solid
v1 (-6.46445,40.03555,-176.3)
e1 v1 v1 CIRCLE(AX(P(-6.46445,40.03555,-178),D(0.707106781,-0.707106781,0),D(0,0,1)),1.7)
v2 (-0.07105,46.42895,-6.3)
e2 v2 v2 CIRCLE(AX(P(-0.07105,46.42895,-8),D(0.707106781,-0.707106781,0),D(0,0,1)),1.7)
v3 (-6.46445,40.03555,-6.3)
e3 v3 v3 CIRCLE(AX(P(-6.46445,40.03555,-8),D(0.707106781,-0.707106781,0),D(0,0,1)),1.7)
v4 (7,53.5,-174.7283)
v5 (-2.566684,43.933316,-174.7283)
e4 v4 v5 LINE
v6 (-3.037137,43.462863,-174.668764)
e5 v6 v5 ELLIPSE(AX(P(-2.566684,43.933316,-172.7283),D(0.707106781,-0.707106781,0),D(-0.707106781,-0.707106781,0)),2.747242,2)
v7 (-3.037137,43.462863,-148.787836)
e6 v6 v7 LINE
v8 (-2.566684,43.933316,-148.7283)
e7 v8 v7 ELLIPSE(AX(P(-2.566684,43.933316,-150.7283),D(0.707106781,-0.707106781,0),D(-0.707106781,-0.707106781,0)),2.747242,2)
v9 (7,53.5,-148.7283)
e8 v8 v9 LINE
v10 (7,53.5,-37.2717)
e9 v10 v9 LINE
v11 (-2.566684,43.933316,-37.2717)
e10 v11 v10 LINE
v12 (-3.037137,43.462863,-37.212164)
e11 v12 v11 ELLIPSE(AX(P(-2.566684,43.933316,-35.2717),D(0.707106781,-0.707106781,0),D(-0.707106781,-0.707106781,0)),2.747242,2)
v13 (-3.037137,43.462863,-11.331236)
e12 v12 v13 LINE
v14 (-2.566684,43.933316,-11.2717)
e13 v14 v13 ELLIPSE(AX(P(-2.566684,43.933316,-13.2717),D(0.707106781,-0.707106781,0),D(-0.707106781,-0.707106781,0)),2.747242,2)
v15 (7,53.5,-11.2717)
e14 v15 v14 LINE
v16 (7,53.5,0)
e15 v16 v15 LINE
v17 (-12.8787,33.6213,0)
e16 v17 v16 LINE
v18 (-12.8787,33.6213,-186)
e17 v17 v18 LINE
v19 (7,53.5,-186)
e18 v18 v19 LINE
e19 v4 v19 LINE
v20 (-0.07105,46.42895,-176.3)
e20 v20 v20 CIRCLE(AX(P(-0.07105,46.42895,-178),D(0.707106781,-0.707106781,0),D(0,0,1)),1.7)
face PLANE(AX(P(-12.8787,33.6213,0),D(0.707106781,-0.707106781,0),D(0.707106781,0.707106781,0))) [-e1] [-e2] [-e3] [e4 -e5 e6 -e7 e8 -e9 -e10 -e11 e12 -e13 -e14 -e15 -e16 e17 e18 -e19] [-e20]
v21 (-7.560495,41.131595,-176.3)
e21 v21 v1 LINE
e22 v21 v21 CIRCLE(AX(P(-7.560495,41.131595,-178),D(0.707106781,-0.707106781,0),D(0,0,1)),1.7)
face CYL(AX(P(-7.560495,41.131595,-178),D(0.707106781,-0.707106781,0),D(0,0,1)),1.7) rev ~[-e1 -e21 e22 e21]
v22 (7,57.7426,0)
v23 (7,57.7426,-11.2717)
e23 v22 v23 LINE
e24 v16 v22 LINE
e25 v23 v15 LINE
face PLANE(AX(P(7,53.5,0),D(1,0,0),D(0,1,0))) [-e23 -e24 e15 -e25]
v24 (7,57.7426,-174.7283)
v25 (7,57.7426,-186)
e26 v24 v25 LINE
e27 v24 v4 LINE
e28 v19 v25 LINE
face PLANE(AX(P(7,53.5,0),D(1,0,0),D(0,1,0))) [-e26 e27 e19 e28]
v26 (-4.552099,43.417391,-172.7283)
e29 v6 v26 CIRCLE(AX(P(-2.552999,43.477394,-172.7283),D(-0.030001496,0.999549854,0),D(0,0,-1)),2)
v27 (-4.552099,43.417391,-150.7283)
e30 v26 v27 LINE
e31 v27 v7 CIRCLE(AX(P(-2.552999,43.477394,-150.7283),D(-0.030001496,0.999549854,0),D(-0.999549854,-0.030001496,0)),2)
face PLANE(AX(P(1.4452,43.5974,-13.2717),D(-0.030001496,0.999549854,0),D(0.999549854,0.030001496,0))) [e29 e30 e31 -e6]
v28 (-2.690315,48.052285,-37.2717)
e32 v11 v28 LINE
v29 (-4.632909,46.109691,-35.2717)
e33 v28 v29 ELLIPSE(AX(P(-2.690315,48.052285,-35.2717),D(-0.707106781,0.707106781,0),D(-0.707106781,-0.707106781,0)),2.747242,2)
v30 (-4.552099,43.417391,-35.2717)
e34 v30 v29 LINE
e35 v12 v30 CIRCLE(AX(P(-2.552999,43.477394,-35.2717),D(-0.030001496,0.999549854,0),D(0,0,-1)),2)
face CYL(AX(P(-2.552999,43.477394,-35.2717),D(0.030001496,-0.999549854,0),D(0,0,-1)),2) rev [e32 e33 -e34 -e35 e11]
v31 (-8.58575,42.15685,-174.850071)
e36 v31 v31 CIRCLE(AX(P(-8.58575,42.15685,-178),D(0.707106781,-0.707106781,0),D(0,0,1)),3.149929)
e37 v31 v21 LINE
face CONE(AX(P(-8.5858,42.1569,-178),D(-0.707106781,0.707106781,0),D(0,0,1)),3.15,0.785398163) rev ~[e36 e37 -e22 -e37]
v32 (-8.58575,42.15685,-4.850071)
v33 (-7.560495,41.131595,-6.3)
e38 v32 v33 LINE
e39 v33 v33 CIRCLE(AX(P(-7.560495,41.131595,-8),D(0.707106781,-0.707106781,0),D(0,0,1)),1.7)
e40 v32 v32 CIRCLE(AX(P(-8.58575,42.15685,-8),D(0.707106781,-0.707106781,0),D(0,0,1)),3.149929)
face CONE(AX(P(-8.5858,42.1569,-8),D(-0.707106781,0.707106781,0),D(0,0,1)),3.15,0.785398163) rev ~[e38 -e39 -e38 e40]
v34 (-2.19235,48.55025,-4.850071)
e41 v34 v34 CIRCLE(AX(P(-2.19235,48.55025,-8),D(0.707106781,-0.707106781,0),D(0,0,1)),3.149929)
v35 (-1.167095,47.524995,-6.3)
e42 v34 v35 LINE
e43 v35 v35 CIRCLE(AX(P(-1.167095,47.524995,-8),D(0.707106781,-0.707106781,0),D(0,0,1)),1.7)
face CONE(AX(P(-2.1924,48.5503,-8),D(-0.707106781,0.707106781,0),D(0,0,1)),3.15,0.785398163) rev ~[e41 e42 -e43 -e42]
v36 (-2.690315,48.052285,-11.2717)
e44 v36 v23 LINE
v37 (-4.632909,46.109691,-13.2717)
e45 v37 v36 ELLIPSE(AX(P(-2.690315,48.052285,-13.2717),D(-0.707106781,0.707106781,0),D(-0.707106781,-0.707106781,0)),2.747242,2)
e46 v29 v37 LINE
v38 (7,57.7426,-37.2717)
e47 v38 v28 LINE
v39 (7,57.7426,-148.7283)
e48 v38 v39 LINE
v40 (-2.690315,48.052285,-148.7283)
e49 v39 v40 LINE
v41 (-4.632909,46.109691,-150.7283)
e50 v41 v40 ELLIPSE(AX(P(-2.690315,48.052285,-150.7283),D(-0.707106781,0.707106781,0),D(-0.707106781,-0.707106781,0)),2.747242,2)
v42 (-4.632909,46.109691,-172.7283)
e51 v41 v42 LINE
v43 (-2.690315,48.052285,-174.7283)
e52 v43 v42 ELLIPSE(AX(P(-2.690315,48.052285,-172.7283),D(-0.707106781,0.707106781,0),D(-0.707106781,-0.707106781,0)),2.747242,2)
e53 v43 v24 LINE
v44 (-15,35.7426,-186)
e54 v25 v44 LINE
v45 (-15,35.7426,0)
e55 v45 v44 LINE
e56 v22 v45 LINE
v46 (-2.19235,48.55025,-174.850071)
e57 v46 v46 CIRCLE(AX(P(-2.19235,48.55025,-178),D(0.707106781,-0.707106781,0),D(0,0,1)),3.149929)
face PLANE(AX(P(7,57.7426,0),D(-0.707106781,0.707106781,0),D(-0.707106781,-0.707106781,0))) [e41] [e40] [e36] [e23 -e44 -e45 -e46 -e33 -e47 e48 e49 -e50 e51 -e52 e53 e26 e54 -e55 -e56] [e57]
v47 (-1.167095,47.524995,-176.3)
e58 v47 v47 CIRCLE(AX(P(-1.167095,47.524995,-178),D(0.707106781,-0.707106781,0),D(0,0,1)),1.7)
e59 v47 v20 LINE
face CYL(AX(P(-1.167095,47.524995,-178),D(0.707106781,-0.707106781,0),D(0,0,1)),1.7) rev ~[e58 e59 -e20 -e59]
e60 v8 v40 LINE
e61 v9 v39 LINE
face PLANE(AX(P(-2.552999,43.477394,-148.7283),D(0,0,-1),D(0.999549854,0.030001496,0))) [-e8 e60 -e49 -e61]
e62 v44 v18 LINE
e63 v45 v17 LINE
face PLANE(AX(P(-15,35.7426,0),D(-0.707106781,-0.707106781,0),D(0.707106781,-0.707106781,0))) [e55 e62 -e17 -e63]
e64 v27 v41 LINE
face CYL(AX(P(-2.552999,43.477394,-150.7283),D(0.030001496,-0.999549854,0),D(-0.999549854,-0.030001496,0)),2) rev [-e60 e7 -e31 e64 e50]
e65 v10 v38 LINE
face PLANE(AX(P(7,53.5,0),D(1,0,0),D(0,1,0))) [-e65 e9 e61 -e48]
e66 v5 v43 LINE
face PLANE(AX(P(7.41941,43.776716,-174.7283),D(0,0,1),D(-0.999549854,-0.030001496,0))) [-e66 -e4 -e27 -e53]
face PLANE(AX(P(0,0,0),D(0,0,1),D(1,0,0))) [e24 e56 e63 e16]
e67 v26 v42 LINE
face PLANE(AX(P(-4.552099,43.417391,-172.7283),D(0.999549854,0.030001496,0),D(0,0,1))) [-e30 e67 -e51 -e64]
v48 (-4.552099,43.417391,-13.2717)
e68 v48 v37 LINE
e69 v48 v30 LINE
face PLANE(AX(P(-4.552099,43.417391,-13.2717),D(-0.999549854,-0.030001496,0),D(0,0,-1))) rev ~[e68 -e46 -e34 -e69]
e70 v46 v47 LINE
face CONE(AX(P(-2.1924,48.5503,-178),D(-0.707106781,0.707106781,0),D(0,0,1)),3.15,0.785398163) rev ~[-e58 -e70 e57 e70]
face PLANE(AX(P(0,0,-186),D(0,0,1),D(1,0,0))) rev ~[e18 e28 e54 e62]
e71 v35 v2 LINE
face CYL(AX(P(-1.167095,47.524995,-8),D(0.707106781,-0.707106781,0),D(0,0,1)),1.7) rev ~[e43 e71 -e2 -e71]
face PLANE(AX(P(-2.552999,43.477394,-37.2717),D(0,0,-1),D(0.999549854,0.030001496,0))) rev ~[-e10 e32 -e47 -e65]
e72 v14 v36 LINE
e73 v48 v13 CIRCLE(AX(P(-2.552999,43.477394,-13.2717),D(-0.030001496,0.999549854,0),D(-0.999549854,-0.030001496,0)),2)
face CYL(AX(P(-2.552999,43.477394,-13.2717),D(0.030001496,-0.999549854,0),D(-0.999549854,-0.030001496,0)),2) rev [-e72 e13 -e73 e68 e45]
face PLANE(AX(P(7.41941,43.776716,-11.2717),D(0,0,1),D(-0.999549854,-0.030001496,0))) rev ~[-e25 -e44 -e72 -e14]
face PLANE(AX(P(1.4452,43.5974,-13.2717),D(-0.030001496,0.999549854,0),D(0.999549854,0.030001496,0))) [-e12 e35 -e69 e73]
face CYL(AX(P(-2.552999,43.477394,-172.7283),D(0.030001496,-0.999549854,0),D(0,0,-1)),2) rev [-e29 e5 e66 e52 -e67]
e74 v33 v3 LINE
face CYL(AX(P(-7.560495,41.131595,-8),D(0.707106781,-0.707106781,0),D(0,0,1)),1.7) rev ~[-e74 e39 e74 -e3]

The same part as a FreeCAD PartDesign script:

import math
import FreeCAD as App
import Part
import Sketcher

V = App.Vector
Q = App.Units.Quantity

doc = App.newDocument("Part")
body = doc.addObject("PartDesign::Body", "Body")

sketch1 = body.newObject("Sketcher::SketchObject", "Sketch")
sketch1.AttachmentSupport = (doc.getObject("XY_Plane"), [""])
sketch1.MapMode = "FlatFace"
sketch1.addGeometry([
    Part.LineSegment(V(7, 53.5, 0), V(7, 57.7, 0)),
    Part.LineSegment(V(7, 57.7, 0), V(-15, 35.7, 0)),
    Part.LineSegment(V(-15, 35.7, 0), V(-12.9, 33.6, 0)),
    Part.LineSegment(V(-12.9, 33.6, 0), V(7, 53.5, 0)),
], False)
sketch1.addConstraint([
    Sketcher.Constraint("Coincident", 0, 2, 1, 1),
    Sketcher.Constraint("Coincident", 1, 2, 2, 1),
    Sketcher.Constraint("Coincident", 2, 2, 3, 1),
    Sketcher.Constraint("Coincident", 3, 2, 0, 1),
    Sketcher.Constraint("Vertical", 0),
    Sketcher.Constraint("Perpendicular", 1, 2),
    Sketcher.Constraint("Perpendicular", 2, 3),
    Sketcher.Constraint("Distance", 2, Q("3 mm")),
    Sketcher.Constraint("Angle", 1, Q("-135 deg")),
    Sketcher.Constraint("DistanceX", -1, 1, 0, 2, Q("7 mm")),
    Sketcher.Constraint("DistanceX", 1, 2, -1, 1, Q("15 mm")),
    Sketcher.Constraint("DistanceY", -1, 1, 3, 2, Q("53.5 mm")),
])
pad1 = body.newObject("PartDesign::Pad", "Pad")
pad1.Profile = sketch1
pad1.Length = 186
pad1.Reversed = True

sketch2 = body.newObject("Sketcher::SketchObject", "Sketch001")
sketch2.Placement = App.Placement(V(1.4452, 43.5974, -13.2717), App.Rotation(V(0.999549854, 0.030001496, 0), V(0, 0, -1), V(-0.030001496, 0.999549854, 0), "ZXY"))
sketch2.addGeometry([
    Part.LineSegment(V(-6, 22, 0), V(-6, 0, 0)),
    Part.ArcOfCircle(Part.Circle(V(-4, 0, 0), V(0, 0, 1), 2), math.radians(180), math.radians(270)),
    Part.LineSegment(V(-4, -2, 0), V(6, -2, 0)),
    Part.LineSegment(V(6, -2, 0), V(6, 24, 0)),
    Part.LineSegment(V(6, 24, 0), V(-4, 24, 0)),
    Part.ArcOfCircle(Part.Circle(V(-4, 22, 0), V(0, 0, 1), 2), math.radians(90), math.radians(180)),
    Part.ArcOfCircle(Part.Circle(V(-4, 159.5, 0), V(0, 0, 1), 2), math.radians(90), math.radians(180)),
    Part.LineSegment(V(-6, 159.5, 0), V(-6, 137.5, 0)),
    Part.ArcOfCircle(Part.Circle(V(-4, 137.5, 0), V(0, 0, 1), 2), math.radians(180), math.radians(270)),
    Part.LineSegment(V(-4, 135.5, 0), V(6, 135.5, 0)),
    Part.LineSegment(V(6, 135.5, 0), V(6, 161.5, 0)),
    Part.LineSegment(V(6, 161.5, 0), V(-4, 161.5, 0)),
], False)
sketch2.addConstraint([
    Sketcher.Constraint("Tangent", 0, 2, 1, 1),
    Sketcher.Constraint("Tangent", 1, 2, 2, 1),
    Sketcher.Constraint("Coincident", 2, 2, 3, 1),
    Sketcher.Constraint("Coincident", 3, 2, 4, 1),
    Sketcher.Constraint("Tangent", 4, 2, 5, 1),
    Sketcher.Constraint("Tangent", 5, 2, 0, 1),
    Sketcher.Constraint("Tangent", 6, 2, 7, 1),
    Sketcher.Constraint("Tangent", 7, 2, 8, 1),
    Sketcher.Constraint("Tangent", 8, 2, 9, 1),
    Sketcher.Constraint("Coincident", 9, 2, 10, 1),
    Sketcher.Constraint("Coincident", 10, 2, 11, 1),
    Sketcher.Constraint("Tangent", 11, 2, 6, 1),
    Sketcher.Constraint("Vertical", 0),
    Sketcher.Constraint("Horizontal", 2),
    Sketcher.Constraint("Vertical", 3),
    Sketcher.Constraint("Horizontal", 4),
    Sketcher.Constraint("Vertical", 7),
    Sketcher.Constraint("Horizontal", 9),
    Sketcher.Constraint("Vertical", 10),
    Sketcher.Constraint("Horizontal", 11),
    Sketcher.Constraint("Equal", 1, 5),
    Sketcher.Constraint("Equal", 5, 6),
    Sketcher.Constraint("Equal", 6, 8),
    Sketcher.Constraint("PointOnObject", 1, 3, -1),
    Sketcher.Constraint("Vertical", 5, 3, 6, 3),
    Sketcher.Constraint("Vertical", 3, 2, 9, 2),
    Sketcher.Constraint("Equal", 0, 7),
    Sketcher.Constraint("Radius", 1, Q("2 mm")),
    Sketcher.Constraint("DistanceY", 0, 2, 0, 1, Q("22 mm")),
    Sketcher.Constraint("DistanceX", 1, 3, -1, 1, Q("4 mm")),
    Sketcher.Constraint("DistanceX", 2, 1, 2, 2, Q("9.977 mm")),
    Sketcher.Constraint("DistanceY", -1, 1, 6, 3, Q("159.4566 mm")),
])
pocket1 = body.newObject("PartDesign::Pocket", "Pocket")
pocket1.Profile = sketch2
pocket1.Type = "ThroughAll"
pocket1.Reversed = True

sketch3 = body.newObject("Sketcher::SketchObject", "Sketch002")
sketch3.Placement = App.Placement(V(-25.37135, 25.37135, 0), App.Rotation(V(-0.707106781, -0.707106781, 0), V(0, 0, 0.999999999), V(-0.707106781, 0.707106781, 0), "ZXY"))
sketch3.addGeometry([
    Part.Circle(V(-23.7, -8, 0), V(0, 0, 1), 1.7),
    Part.Circle(V(-32.8, -8, 0), V(0, 0, 1), 1.7),
    Part.Circle(V(-23.7, -178, 0), V(0, 0, 1), 1.7),
    Part.Circle(V(-32.8, -178, 0), V(0, 0, 1), 1.7),
], False)
sketch3.addConstraint([
    Sketcher.Constraint("Equal", 0, 1),
    Sketcher.Constraint("Equal", 1, 2),
    Sketcher.Constraint("Equal", 2, 3),
    Sketcher.Constraint("Horizontal", 0, 3, 1, 3),
    Sketcher.Constraint("Horizontal", 2, 3, 3, 3),
    Sketcher.Constraint("Vertical", 0, 3, 2, 3),
    Sketcher.Constraint("Vertical", 1, 3, 3, 3),
    Sketcher.Constraint("Diameter", 0, Q("3.4 mm")),
    Sketcher.Constraint("DistanceY", 0, 3, -1, 1, Q("8 mm")),
    Sketcher.Constraint("DistanceY", 2, 3, -1, 1, Q("178 mm")),
    Sketcher.Constraint("DistanceX", 1, 3, -1, 1, Q("32.78 mm")),
    Sketcher.Constraint("DistanceX", 0, 3, -1, 1, Q("23.7384 mm")),
])
doc.recompute()
hole = body.newObject("PartDesign::Hole", "Hole")
hole.Profile = sketch3
hole.ThreadType = "None"
hole.Diameter = 3.4
hole.DepthType = "ThroughAll"
hole.HoleCutType = "Countersink"
hole.HoleCutDiameter = 6.3
hole.HoleCutCountersinkAngle = 90

doc.recompute()
